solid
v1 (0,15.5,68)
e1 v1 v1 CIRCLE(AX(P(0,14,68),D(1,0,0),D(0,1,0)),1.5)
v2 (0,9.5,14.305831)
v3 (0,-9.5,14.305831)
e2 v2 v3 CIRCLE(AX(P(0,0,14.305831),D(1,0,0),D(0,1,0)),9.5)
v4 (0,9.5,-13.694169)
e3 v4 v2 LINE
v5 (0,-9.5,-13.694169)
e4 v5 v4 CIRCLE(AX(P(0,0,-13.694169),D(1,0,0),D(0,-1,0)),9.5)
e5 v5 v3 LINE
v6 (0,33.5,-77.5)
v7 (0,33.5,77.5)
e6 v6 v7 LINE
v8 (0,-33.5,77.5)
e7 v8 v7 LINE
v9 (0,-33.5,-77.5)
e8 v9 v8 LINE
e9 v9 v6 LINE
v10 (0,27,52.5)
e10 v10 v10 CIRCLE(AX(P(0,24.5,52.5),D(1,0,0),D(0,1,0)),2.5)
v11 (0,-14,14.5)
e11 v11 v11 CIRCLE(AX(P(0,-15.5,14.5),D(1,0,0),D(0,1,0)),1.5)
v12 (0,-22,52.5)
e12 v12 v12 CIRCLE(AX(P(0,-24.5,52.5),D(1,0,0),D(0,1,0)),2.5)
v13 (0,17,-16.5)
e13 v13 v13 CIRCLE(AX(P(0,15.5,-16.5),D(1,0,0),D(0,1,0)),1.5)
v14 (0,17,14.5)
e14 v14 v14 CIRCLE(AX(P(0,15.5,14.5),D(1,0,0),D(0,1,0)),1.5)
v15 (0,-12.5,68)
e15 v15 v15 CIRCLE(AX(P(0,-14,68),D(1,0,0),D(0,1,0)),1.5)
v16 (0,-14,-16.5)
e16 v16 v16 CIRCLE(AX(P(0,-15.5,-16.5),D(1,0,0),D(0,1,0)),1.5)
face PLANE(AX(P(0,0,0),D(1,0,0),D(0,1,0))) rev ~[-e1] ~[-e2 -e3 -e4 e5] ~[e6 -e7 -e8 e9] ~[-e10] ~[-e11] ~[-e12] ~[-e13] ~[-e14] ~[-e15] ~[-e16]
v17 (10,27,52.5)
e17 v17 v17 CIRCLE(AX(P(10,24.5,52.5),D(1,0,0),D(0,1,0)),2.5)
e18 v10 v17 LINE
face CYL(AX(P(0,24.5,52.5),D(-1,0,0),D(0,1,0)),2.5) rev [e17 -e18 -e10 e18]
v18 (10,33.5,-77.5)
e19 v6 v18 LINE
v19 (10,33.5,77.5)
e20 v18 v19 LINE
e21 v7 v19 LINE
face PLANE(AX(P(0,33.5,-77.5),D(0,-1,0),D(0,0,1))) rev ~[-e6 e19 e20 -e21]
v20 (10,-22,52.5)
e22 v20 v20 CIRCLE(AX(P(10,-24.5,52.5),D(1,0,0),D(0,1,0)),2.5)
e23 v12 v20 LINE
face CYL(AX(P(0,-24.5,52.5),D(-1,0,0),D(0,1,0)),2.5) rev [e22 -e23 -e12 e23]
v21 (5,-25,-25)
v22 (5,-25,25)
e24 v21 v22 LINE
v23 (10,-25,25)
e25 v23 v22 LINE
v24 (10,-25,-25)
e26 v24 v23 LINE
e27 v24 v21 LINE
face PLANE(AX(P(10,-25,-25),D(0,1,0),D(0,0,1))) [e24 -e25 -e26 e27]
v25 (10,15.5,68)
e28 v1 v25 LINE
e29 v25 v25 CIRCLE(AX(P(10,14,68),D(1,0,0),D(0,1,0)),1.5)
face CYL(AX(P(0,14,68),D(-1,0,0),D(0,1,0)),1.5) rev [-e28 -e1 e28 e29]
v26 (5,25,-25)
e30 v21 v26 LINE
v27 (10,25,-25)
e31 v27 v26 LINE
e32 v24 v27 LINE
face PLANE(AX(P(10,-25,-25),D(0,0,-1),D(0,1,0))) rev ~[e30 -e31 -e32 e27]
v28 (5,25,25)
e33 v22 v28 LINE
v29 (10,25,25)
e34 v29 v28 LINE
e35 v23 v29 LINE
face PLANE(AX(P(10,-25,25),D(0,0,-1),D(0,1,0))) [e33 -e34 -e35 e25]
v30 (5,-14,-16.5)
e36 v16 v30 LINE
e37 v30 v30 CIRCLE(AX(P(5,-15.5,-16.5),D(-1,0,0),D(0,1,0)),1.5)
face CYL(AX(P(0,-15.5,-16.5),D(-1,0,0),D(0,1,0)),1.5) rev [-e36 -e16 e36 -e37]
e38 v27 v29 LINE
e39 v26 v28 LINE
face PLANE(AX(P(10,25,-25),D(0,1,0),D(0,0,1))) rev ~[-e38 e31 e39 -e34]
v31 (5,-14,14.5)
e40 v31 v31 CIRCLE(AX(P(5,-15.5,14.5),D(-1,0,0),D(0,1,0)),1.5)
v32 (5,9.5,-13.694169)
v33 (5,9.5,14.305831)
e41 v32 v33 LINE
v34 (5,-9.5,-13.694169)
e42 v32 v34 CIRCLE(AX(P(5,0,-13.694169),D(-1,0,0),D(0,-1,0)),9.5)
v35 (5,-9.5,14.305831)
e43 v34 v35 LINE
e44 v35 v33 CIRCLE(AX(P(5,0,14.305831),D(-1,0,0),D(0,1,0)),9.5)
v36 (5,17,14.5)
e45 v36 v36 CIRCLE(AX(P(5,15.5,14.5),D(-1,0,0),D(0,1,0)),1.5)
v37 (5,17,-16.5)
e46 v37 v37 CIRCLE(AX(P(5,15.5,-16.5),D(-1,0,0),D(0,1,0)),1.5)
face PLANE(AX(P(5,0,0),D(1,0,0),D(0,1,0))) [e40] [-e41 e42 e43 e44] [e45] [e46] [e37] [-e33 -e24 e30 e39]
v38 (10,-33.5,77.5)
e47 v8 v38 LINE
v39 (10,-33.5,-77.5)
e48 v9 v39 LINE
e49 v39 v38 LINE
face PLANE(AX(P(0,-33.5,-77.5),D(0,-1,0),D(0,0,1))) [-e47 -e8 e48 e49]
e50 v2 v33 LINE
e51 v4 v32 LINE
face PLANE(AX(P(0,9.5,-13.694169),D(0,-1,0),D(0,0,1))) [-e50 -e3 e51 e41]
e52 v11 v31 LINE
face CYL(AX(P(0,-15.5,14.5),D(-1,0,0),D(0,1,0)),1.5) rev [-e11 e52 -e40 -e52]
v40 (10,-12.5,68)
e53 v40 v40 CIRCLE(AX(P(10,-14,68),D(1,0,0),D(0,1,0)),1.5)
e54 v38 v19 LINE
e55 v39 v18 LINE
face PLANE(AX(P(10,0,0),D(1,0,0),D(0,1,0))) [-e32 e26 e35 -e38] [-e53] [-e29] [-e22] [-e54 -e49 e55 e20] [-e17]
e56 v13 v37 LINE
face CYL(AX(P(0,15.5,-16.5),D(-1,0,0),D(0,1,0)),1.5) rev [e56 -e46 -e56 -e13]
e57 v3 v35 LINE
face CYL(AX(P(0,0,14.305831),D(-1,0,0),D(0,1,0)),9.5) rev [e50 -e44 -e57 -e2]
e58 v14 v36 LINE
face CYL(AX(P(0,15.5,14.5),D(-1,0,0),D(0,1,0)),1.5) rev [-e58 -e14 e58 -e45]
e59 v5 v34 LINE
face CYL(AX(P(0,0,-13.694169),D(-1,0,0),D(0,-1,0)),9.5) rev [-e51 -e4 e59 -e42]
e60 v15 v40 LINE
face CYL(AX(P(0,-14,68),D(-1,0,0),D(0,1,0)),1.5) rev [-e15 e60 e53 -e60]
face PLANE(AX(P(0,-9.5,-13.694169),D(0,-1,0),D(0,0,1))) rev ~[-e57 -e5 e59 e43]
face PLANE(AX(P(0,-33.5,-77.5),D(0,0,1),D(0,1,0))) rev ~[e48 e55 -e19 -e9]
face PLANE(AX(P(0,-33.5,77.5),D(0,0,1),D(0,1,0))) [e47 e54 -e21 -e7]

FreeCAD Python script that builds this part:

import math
import FreeCAD as App
import Part
import Sketcher
from FreeCAD import Vector


def add_polygon(sketch, points):
    """Adds a closed chain of lines whose ends are joined by coincident constraints."""
    first, n = sketch.GeometryCount, len(points)
    for a, b in zip(points, points[1:] + points[:1]):
        sketch.addGeometry(Part.LineSegment(App.Vector(*a, 0), App.Vector(*b, 0)), False)
    for i in range(n):
        sketch.addConstraint(Sketcher.Constraint("Coincident", first + i, 2, first + (i + 1) % n, 1))

doc = App.newDocument("Part")
body = doc.addObject("PartDesign::Body", "Body")

sketch1 = body.newObject("Sketcher::SketchObject", "Sketch")
sketch1.AttachmentSupport = (doc.getObject("YZ_Plane"), [""])
sketch1.MapMode = "FlatFace"
add_polygon(sketch1, [(-33.5, 77.5), (-33.5, -77.5), (33.5, -77.5), (33.5, 77.5)])
sketch1.addGeometry(Part.Circle(Vector(-15.5, -16.5, 0), Vector(0, 0, 1), 1.5), False)
sketch1.addGeometry(Part.Circle(Vector(-15.5, 14.5, 0), Vector(0, 0, 1), 1.5), False)
sketch1.addGeometry(Part.Circle(Vector(15.5, -16.5, 0), Vector(0, 0, 1), 1.5), False)
sketch1.addGeometry(Part.ArcOfCircle(Part.Circle(Vector(0, -13.7, 0), Vector(0, 0, 1), 9.5), math.radians(180), math.radians(360)), False)
sketch1.addGeometry(Part.LineSegment(Vector(-9.5, -13.7, 0), Vector(-9.5, 14.3, 0)), False)
sketch1.addGeometry(Part.ArcOfCircle(Part.Circle(Vector(0, 14.3, 0), Vector(0, 0, 1), 9.5), math.radians(0), math.radians(180)), False)
sketch1.addGeometry(Part.LineSegment(Vector(9.5, 14.3, 0), Vector(9.5, -13.7, 0)), False)
sketch1.addGeometry(Part.Circle(Vector(15.5, 14.5, 0), Vector(0, 0, 1), 1.5), False)
sketch1.addGeometry(Part.Circle(Vector(-24.5, 52.5, 0), Vector(0, 0, 1), 2.5), False)
sketch1.addGeometry(Part.Circle(Vector(-14, 68, 0), Vector(0, 0, 1), 1.5), False)
sketch1.addGeometry(Part.Circle(Vector(24.5, 52.5, 0), Vector(0, 0, 1), 2.5), False)
sketch1.addGeometry(Part.Circle(Vector(14, 68, 0), Vector(0, 0, 1), 1.5), False)
sketch1.addConstraint([
    Sketcher.Constraint("Tangent", 7, 1, 8, 1),
    Sketcher.Constraint("Tangent", 8, 2, 9, 2),
    Sketcher.Constraint("Tangent", 9, 1, 10, 1),
    Sketcher.Constraint("Tangent", 10, 2, 7, 2),
    Sketcher.Constraint("Vertical", 0),
    Sketcher.Constraint("Horizontal", 1),
    Sketcher.Constraint("Vertical", 2),
    Sketcher.Constraint("Horizontal", 3),
    Sketcher.Constraint("Vertical", 8),
    Sketcher.Constraint("Vertical", 10),
    Sketcher.Constraint("Equal", 4, 5),
    Sketcher.Constraint("Equal", 5, 6),
    Sketcher.Constraint("Equal", 6, 11),
    Sketcher.Constraint("Equal", 11, 13),
    Sketcher.Constraint("Equal", 12, 14),
    Sketcher.Constraint("Equal", 13, 15),
    Sketcher.Constraint("Symmetric", 0, 2, 2, 2, -1, 1),
    Sketcher.Constraint("Symmetric", 4, 3, 6, 3, -2),
    Sketcher.Constraint("Symmetric", 5, 3, 11, 3, -2),
    Sketcher.Constraint("Symmetric", 12, 3, 14, 3, -2),
    Sketcher.Constraint("Symmetric", 13, 3, 15, 3, -2),
    Sketcher.Constraint("PointOnObject", 7, 3, -2),
    Sketcher.Constraint("Vertical", 4, 3, 5, 3),
    Sketcher.Constraint("Diameter", 4, 3.0),
    Sketcher.Constraint("Diameter", 12, 5.0),
    Sketcher.Constraint("Radius", 7, 9.5),
    Sketcher.Constraint("DistanceX", 1, 1, 1, 2, 67.0),
    Sketcher.Constraint("DistanceY", 0, 2, 0, 1, 155.0),
    Sketcher.Constraint("DistanceY", 8, 1, 8, 2, 28.0),
    Sketcher.Constraint("DistanceX", 13, 3, -1, 1, 14.0),
    Sketcher.Constraint("DistanceY", -1, 1, 13, 3, 68.0),
    Sketcher.Constraint("DistanceY", 4, 3, 5, 3, 31.0),
    Sketcher.Constraint("DistanceX", 4, 3, 6, 3, 31.0),
    Sketcher.Constraint("DistanceX", 12, 3, 5, 3, 9.0),
    Sketcher.Constraint("DistanceY", 5, 3, 12, 3, 38.0),
    Sketcher.Constraint("DistanceY", 0, 2, 4, 3, 61.0),
    Sketcher.Constraint("DistanceY", 7, 3, -1, 1, 13.694169),
])
pad1 = body.newObject("PartDesign::Pad", "Pad")
pad1.Profile = sketch1
pad1.Length = 10

sketch2 = body.newObject("Sketcher::SketchObject", "Sketch001")
sketch2.AttachmentSupport = (doc.getObject("YZ_Plane"), [""])
sketch2.MapMode = "FlatFace"
sketch2.AttachmentOffset = App.Placement(Vector(0, 0, 10), App.Rotation())
add_polygon(sketch2, [(-25, 25), (-25, -25), (25, -25), (25, 25)])
sketch2.addConstraint([
    Sketcher.Constraint("Vertical", 0),
    Sketcher.Constraint("Horizontal", 1),
    Sketcher.Constraint("Vertical", 2),
    Sketcher.Constraint("Horizontal", 3),
    Sketcher.Constraint("Symmetric", 0, 2, 2, 2, -1, 1),
    Sketcher.Constraint("Equal", 3, 0),
    Sketcher.Constraint("DistanceX", 1, 1, 1, 2, 50.0),
])
pocket1 = body.newObject("PartDesign::Pocket", "Pocket")
pocket1.Profile = sketch2
pocket1.Length = 5

doc.recompute()
